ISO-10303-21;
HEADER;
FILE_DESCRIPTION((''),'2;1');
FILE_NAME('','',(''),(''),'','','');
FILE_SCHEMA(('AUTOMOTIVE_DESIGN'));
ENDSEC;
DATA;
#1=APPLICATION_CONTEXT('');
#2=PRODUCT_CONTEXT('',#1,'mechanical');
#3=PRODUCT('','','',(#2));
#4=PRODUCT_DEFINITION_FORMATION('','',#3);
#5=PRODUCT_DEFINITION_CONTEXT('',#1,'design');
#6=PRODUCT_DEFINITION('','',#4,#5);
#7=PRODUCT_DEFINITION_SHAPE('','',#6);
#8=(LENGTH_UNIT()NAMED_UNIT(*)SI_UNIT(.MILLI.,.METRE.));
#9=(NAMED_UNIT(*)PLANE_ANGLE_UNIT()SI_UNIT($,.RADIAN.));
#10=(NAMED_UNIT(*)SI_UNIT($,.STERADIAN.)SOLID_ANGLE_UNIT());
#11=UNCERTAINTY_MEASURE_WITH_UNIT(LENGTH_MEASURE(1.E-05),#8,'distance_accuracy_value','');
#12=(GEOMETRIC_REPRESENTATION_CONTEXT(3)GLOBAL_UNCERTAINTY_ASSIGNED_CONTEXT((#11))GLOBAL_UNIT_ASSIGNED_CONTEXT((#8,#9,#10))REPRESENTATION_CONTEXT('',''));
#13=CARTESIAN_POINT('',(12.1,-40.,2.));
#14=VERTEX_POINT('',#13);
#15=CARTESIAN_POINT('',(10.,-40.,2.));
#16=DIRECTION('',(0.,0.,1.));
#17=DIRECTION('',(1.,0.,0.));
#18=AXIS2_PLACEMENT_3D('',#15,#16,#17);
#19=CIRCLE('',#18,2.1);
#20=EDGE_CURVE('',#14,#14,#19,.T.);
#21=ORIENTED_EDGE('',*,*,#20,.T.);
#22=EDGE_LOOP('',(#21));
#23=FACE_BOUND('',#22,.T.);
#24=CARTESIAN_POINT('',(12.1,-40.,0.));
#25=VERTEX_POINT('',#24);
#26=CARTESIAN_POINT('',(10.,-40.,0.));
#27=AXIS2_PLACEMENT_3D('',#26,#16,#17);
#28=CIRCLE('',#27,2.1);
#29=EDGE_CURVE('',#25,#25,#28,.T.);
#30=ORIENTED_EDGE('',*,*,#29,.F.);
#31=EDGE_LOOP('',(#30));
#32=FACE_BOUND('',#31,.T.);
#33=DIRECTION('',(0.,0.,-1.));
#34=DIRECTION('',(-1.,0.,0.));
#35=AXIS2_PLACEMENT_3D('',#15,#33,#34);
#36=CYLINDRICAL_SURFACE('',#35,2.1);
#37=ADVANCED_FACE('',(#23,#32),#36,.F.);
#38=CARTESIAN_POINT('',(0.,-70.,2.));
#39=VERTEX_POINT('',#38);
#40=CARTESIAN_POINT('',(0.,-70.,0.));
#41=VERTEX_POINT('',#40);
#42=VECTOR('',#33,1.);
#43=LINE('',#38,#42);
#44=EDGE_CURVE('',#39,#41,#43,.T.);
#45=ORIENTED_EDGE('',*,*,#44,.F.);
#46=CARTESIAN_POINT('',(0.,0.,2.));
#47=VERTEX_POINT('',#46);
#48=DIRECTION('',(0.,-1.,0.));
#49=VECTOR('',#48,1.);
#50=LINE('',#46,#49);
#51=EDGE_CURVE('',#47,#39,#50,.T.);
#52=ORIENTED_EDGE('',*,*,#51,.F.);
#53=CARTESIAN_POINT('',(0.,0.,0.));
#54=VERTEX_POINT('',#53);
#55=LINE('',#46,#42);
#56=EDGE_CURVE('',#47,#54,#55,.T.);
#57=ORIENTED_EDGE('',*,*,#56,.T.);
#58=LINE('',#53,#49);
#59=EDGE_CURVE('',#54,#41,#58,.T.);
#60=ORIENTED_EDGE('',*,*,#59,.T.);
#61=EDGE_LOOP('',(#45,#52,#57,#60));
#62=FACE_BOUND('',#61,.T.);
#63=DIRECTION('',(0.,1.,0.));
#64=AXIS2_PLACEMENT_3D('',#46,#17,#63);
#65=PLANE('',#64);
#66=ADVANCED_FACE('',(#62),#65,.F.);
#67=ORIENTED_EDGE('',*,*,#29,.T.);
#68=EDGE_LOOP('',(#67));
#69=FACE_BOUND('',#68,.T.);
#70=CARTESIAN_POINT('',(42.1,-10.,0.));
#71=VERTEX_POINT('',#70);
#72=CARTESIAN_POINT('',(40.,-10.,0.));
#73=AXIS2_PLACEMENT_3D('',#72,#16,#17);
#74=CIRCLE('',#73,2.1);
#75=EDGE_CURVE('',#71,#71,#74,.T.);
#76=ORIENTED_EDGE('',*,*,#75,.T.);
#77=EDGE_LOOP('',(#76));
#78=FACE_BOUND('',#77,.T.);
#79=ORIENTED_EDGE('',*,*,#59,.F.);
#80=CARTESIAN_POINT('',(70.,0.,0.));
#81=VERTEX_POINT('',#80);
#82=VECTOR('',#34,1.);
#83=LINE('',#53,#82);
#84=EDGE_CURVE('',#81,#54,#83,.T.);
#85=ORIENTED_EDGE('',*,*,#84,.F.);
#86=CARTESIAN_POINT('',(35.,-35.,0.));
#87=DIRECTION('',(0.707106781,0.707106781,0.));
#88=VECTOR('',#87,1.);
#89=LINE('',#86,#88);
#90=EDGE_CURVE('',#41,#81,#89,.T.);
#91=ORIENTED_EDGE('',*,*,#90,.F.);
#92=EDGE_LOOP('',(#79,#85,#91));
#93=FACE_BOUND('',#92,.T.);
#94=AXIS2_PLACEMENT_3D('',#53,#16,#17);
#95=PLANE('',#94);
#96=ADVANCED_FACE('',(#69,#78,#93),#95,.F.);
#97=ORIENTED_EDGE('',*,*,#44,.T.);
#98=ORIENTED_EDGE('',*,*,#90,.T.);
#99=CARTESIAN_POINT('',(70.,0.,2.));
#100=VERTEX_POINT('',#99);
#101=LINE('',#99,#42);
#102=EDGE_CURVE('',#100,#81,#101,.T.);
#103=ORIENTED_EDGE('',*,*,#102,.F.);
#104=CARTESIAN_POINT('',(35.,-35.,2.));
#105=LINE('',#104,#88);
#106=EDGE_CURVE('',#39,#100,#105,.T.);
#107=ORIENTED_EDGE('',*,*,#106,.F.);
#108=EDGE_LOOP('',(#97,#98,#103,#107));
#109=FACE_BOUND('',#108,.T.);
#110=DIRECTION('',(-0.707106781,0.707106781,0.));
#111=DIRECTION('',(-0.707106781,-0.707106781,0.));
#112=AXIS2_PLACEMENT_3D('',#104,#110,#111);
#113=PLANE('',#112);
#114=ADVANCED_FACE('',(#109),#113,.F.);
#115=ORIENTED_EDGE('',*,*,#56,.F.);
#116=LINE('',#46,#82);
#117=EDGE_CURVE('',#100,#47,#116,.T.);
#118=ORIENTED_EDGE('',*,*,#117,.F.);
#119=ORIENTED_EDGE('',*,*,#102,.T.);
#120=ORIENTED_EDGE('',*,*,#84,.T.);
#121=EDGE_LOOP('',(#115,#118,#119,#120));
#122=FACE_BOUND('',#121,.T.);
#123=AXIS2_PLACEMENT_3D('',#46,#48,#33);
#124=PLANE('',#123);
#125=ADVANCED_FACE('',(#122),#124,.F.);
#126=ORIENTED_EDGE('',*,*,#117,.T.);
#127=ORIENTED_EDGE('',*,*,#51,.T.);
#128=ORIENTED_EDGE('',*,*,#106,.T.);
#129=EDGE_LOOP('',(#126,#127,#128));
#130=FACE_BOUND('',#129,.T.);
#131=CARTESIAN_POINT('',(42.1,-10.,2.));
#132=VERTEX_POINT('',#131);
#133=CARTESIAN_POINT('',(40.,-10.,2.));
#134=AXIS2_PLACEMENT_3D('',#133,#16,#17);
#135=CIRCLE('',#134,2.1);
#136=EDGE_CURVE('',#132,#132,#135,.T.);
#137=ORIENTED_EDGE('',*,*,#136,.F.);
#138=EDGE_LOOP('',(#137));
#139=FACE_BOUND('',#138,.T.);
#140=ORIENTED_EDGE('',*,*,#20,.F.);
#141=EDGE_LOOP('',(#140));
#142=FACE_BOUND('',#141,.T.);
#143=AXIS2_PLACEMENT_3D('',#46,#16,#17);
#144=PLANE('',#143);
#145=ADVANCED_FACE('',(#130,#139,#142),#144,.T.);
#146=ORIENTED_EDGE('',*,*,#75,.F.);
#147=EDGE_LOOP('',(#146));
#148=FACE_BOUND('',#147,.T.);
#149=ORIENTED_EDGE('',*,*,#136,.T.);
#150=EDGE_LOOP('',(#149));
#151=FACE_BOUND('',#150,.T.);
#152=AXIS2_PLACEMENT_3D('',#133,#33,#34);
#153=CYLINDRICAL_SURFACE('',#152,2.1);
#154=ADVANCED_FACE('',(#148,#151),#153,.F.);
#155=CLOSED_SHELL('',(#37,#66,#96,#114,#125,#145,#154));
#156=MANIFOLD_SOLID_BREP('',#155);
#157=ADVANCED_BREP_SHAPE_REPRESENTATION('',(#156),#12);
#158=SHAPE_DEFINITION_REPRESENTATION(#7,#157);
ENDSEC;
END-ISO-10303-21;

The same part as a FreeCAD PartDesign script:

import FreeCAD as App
import Part
import Sketcher

doc = App.newDocument("Part")
body = doc.addObject("PartDesign::Body", "Body")

sketch1 = body.newObject("Sketcher::SketchObject", "Sketch")
sketch1.AttachmentSupport = (doc.getObject("XY_Plane"), [""])
sketch1.MapMode = "FlatFace"
sketch1.addGeometry(Part.LineSegment(App.Vector(0, 0, 0), App.Vector(0, -70, 0)), False)
sketch1.addGeometry(Part.LineSegment(App.Vector(0, -70, 0), App.Vector(70, 0, 0)), False)
sketch1.addGeometry(Part.LineSegment(App.Vector(70, 0, 0), App.Vector(0, 0, 0)), False)
sketch1.addGeometry(Part.Circle(App.Vector(10, -40, 0), App.Vector(0, 0, 1), 2.1), False)
sketch1.addGeometry(Part.Circle(App.Vector(40, -10, 0), App.Vector(0, 0, 1), 2.1), False)
sketch1.addConstraint(Sketcher.Constraint("Coincident", 0, 2, 1, 1))
sketch1.addConstraint(Sketcher.Constraint("Coincident", 1, 2, 2, 1))
sketch1.addConstraint(Sketcher.Constraint("Coincident", 2, 2, 0, 1))
sketch1.addConstraint(Sketcher.Constraint("Vertical", 0))
sketch1.addConstraint(Sketcher.Constraint("Horizontal", 2))
sketch1.addConstraint(Sketcher.Constraint("Coincident", 2, 2, -1, 1))
sketch1.addConstraint(Sketcher.Constraint("Equal", 3, 4))
sketch1.addConstraint(Sketcher.Constraint("Equal", 2, 0))
sketch1.addConstraint(Sketcher.Constraint("Diameter", 3, 4.2))
sketch1.addConstraint(Sketcher.Constraint("DistanceX", 2, 2, 2, 1, 70.0))
sketch1.addConstraint(Sketcher.Constraint("DistanceX", -1, 1, 3, 3, 10.0))
sketch1.addConstraint(Sketcher.Constraint("DistanceY", 3, 3, -1, 1, 40.0))
sketch1.addConstraint(Sketcher.Constraint("DistanceX", -1, 1, 4, 3, 40.0))
sketch1.addConstraint(Sketcher.Constraint("DistanceY", 4, 3, -1, 1, 10.0))
pad1 = body.newObject("PartDesign::Pad", "Pad")
pad1.Profile = sketch1
pad1.Length = 2

doc.recompute()
